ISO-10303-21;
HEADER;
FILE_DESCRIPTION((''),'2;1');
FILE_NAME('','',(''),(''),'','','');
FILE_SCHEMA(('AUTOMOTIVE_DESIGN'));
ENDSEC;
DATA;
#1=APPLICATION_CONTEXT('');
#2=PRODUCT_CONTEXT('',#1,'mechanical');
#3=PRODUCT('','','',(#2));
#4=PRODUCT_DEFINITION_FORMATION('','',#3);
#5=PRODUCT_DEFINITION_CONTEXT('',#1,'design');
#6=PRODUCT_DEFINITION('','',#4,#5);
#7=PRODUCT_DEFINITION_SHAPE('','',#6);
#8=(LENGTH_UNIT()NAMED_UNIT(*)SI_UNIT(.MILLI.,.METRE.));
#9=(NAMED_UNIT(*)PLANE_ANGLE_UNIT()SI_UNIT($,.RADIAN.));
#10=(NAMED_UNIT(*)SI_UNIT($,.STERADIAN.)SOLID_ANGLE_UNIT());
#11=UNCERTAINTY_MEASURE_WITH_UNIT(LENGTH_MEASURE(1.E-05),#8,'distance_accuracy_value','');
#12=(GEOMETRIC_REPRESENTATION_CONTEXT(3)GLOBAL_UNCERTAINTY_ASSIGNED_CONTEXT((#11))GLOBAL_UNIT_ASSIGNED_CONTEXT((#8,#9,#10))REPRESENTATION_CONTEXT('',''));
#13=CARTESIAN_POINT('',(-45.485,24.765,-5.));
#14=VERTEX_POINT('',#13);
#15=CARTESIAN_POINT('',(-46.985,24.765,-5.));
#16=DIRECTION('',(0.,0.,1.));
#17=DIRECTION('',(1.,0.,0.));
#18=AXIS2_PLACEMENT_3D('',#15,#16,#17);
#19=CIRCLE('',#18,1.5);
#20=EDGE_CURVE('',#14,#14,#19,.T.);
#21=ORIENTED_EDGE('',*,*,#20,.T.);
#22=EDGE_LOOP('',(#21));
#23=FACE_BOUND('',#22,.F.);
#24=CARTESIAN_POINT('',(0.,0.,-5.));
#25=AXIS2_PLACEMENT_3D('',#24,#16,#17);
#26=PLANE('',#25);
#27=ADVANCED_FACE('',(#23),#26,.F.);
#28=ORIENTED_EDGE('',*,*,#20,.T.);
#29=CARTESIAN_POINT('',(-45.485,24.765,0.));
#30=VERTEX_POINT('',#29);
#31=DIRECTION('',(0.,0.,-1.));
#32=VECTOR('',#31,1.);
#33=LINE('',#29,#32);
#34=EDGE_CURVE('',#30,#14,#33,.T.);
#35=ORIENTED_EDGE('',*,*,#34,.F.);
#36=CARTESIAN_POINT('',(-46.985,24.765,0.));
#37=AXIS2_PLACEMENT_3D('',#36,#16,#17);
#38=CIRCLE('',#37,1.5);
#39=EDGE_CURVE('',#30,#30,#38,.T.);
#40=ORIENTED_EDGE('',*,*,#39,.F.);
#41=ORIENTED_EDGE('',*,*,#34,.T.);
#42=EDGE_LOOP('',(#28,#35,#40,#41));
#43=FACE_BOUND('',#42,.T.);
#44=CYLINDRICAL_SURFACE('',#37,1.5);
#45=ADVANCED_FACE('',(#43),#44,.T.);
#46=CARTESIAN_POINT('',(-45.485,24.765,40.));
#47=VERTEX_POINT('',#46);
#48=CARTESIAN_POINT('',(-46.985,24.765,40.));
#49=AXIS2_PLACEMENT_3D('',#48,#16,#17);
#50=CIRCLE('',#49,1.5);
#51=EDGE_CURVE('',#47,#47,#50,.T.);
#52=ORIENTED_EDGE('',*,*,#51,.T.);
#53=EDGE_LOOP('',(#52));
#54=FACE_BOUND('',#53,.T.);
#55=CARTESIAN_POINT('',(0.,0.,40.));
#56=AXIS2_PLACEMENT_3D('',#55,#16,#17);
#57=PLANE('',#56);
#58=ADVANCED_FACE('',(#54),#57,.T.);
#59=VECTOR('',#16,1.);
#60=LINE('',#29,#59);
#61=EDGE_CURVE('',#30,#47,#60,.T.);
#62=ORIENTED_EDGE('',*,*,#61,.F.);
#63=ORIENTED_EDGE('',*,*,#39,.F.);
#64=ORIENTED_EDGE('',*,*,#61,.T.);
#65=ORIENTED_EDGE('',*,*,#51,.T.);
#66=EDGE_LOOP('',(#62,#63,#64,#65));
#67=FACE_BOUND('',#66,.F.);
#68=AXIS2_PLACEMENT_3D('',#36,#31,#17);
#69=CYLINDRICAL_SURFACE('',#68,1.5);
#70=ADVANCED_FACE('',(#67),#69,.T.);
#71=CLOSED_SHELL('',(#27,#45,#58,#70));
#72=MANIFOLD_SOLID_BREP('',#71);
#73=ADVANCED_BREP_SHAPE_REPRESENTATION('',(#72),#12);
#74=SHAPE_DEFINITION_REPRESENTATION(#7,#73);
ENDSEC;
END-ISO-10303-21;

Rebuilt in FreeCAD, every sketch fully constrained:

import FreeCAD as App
import Part
import Sketcher
Q = App.Units.Quantity

doc = App.newDocument("Part")
params = doc.addObject("Spreadsheet::Sheet", "Params")
for row, (alias, value) in enumerate([
    ("sketch1_diameter", "3 mm"),
    ("pad1_length", "40 mm"),
    ("pad1_length2", "5 mm"),
], start=1):
    params.set(f"A{row}", alias)
    params.set(f"B{row}", "=" + value)
    params.setAlias(f"B{row}", alias)

body = doc.addObject("PartDesign::Body", "Body")

# Sketch on XY plane
sketch1 = body.newObject("Sketcher::SketchObject", "Sketch")
sketch1.AttachmentSupport = (doc.getObject("XY_Plane"), [""])
sketch1.MapMode = "FlatFace"
sketch1.addGeometry(Part.Circle(App.Vector(-47, 24.8, 0), App.Vector(0, 0, 1), 1.5), False)
sketch1.addConstraint(Sketcher.Constraint("Diameter", 0, Q("3 mm")))
sketch1.addConstraint(Sketcher.Constraint("DistanceX", 0, 3, -1, 1, Q("46.985 mm")))
sketch1.addConstraint(Sketcher.Constraint("DistanceY", -1, 1, 0, 3, Q("24.765 mm")))
sketch1.setExpression("Constraints[0]", "Params.sketch1_diameter")
pad1 = body.newObject("PartDesign::Pad", "Pad")
pad1.Profile = sketch1
pad1.Type = "TwoLengths"
pad1.setExpression("Length", "Params.pad1_length")
pad1.setExpression("Length2", "Params.pad1_length2")

doc.recompute()
